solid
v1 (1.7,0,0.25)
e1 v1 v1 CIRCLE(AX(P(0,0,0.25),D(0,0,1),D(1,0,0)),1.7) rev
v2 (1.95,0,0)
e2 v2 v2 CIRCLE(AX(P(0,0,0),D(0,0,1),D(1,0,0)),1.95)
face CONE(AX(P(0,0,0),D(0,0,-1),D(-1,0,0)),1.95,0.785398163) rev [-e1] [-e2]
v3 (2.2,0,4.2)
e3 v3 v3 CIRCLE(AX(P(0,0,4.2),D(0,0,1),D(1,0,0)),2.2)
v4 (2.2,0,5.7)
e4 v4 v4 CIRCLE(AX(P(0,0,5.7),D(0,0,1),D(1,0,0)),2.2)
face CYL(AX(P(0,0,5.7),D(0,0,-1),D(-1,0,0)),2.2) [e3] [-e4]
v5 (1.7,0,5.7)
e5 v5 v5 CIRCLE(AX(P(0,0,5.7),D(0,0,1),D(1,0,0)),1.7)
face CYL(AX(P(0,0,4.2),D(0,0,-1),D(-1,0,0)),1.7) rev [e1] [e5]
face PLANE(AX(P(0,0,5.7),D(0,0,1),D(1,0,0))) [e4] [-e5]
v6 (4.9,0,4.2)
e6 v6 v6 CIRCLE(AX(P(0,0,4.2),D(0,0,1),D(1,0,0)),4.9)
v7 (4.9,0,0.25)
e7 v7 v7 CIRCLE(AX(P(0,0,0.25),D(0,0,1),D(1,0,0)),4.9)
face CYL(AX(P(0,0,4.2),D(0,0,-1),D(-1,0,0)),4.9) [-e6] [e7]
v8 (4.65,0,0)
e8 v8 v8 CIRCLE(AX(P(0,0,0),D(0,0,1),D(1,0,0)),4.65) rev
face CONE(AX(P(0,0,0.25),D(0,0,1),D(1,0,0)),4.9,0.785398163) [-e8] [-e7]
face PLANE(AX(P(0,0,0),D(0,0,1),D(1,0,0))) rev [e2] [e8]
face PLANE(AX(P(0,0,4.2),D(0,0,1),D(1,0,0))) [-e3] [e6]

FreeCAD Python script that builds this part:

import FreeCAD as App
import Part
import Sketcher


def edges_at(feature, points):
    """Names of the edges that pass closest to the given points."""
    edges = feature.Shape.Edges
    near = lambda p: min(range(len(edges)), key=lambda i: edges[i].distToShape(Part.Vertex(*p))[0])
    return sorted({f"Edge{near(p) + 1}" for p in points})

doc = App.newDocument("Part")
body = doc.addObject("PartDesign::Body", "Body")

# Sketch on XY plane
sketch1 = body.newObject("Sketcher::SketchObject", "Sketch")
sketch1.AttachmentSupport = (doc.getObject("XY_Plane"), [""])
sketch1.MapMode = "FlatFace"
sketch1.addGeometry([
    Part.Circle(App.Vector(0, 0, 0), App.Vector(0, 0, 1), 4.9),
    Part.Circle(App.Vector(0, 0, 0), App.Vector(0, 0, 1), 1.7),
], False)
sketch1.addConstraint([
    Sketcher.Constraint("Coincident", 0, 3, -1, 1),
    Sketcher.Constraint("Coincident", 1, 3, -1, 1),
    Sketcher.Constraint("Diameter", 0, 9.8),
    Sketcher.Constraint("Diameter", 1, 3.4),
])
pad1 = body.newObject("PartDesign::Pad", "Pad")
pad1.Profile = sketch1
pad1.Length = 4.2

# Sketch on XY plane
sketch2 = body.newObject("Sketcher::SketchObject", "Sketch001")
sketch2.AttachmentSupport = (doc.getObject("XY_Plane"), [""])
sketch2.MapMode = "FlatFace"
sketch2.AttachmentOffset = App.Placement(App.Vector(0, 0, 4.2), App.Rotation())
sketch2.addGeometry([
    Part.Circle(App.Vector(0, 0, 0), App.Vector(0, 0, 1), 2.2),
    Part.Circle(App.Vector(0, 0, 0), App.Vector(0, 0, 1), 1.7),
], False)
sketch2.addConstraint([
    Sketcher.Constraint("Coincident", 0, 3, -1, 1),
    Sketcher.Constraint("Coincident", 1, 3, -1, 1),
    Sketcher.Constraint("Diameter", 0, 4.4),
    Sketcher.Constraint("Diameter", 1, 3.4),
])
pad2 = body.newObject("PartDesign::Pad", "Pad001")
pad2.Profile = sketch2
pad2.Length = 1.5
doc.recompute()

chamfer = body.newObject("PartDesign::Chamfer", "Chamfer")
chamfer.Base = (pad2, edges_at(pad2, [(-4.9, 0, 0), (-1.7, 0, 0)]))
chamfer.Size = 0.25

doc.recompute()
